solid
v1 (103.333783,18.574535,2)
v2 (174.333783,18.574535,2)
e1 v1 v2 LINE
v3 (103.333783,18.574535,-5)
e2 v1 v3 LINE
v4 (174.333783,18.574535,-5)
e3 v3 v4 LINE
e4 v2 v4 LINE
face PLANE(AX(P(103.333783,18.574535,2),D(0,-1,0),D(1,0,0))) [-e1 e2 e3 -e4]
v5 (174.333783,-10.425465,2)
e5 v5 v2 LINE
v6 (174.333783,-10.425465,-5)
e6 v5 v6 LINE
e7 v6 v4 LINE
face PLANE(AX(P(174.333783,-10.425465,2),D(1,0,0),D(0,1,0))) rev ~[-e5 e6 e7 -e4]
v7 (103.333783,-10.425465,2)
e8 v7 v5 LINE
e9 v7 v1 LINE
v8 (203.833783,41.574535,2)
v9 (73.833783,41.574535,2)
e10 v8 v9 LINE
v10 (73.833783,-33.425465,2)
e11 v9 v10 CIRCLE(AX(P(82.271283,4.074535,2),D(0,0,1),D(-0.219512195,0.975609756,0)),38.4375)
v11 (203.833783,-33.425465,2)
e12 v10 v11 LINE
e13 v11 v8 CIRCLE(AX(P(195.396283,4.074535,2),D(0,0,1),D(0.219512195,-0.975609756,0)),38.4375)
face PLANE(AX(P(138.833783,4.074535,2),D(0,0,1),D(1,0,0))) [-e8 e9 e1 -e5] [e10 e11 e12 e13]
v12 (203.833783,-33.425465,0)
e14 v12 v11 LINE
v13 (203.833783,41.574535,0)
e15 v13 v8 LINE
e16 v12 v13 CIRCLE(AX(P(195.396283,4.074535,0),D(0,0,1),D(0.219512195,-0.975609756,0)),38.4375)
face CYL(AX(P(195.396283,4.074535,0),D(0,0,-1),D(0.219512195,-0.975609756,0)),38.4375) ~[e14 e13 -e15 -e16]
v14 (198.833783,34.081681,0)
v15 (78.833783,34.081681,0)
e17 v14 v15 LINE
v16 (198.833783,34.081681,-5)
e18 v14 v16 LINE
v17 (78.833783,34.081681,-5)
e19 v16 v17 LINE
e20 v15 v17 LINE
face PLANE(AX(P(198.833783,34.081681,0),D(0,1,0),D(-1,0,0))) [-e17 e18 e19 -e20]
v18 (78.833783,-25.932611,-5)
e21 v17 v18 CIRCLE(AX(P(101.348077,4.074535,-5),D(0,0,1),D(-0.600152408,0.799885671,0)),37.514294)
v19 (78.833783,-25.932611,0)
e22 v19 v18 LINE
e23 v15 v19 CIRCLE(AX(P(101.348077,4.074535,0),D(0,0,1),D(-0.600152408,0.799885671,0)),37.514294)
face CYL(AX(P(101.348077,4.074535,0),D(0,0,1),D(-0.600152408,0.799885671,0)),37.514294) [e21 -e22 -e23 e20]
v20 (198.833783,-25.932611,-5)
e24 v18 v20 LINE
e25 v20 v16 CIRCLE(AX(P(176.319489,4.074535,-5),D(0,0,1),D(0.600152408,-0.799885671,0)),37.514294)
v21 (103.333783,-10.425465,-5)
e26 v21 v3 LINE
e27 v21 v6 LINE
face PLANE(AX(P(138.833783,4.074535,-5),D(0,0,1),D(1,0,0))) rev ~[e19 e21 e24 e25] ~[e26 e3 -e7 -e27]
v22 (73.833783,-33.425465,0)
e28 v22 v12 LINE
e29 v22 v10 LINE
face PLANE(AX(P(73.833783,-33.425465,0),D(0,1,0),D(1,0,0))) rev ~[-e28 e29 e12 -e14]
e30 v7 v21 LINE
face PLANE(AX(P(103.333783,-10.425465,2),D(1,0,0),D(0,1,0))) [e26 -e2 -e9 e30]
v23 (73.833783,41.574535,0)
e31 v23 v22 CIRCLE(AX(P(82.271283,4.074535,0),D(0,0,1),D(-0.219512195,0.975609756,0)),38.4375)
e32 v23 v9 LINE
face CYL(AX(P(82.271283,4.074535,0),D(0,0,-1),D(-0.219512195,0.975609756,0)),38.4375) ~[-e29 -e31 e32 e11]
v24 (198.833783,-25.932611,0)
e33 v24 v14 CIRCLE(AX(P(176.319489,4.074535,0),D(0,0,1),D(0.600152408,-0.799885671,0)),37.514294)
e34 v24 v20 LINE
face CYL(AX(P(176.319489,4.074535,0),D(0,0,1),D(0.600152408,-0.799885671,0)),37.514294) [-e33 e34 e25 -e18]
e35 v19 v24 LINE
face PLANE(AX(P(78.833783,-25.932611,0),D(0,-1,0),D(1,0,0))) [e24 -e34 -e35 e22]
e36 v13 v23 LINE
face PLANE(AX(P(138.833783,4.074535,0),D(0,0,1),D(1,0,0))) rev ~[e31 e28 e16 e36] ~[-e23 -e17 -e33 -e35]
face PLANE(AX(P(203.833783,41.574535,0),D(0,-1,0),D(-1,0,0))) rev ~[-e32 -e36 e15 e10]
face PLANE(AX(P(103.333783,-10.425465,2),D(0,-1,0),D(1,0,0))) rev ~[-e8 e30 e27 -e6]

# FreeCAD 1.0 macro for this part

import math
import FreeCAD as App
import Part
import Sketcher
from FreeCAD import Vector
Q = App.Units.Quantity


def add_polygon(sketch, points):
    """Adds a closed chain of lines whose ends are joined by coincident constraints."""
    first, n = sketch.GeometryCount, len(points)
    for a, b in zip(points, points[1:] + points[:1]):
        sketch.addGeometry(Part.LineSegment(App.Vector(*a, 0), App.Vector(*b, 0)), False)
    for i in range(n):
        sketch.addConstraint(Sketcher.Constraint("Coincident", first + i, 2, first + (i + 1) % n, 1))

doc = App.newDocument("Part")
body = doc.addObject("PartDesign::Body", "Body")

sketch1 = doc.addObject("Sketcher::SketchObject", "Sketch")
body.addObject(sketch1)
sketch1.AttachmentSupport = (doc.XY_Plane, [""])
sketch1.MapMode = "FlatFace"
sketch1.addGeometry(Part.LineSegment(Vector(204, 42, 0), Vector(74, 42, 0)), False)
sketch1.addGeometry(Part.ArcOfCircle(Part.Circle(Vector(82, 4, 0), Vector(0, 0, 1), 38), math.radians(103), math.radians(257)), False)
sketch1.addGeometry(Part.LineSegment(Vector(74, -33, 0), Vector(204, -33, 0)), False)
sketch1.addGeometry(Part.ArcOfCircle(Part.Circle(Vector(195, 4, 0), Vector(0, 0, 1), 38), math.radians(-77), math.radians(77)), False)
sketch1.addConstraint(Sketcher.Constraint("Coincident", 0, 2, 1, 1))
sketch1.addConstraint(Sketcher.Constraint("Coincident", 1, 2, 2, 1))
sketch1.addConstraint(Sketcher.Constraint("Coincident", 2, 2, 3, 1))
sketch1.addConstraint(Sketcher.Constraint("Coincident", 3, 2, 0, 1))
sketch1.addConstraint(Sketcher.Constraint("Horizontal", 0))
sketch1.addConstraint(Sketcher.Constraint("Horizontal", 2))
sketch1.addConstraint(Sketcher.Constraint("Equal", 1, 3))
sketch1.addConstraint(Sketcher.Constraint("Horizontal", 1, 3, 3, 3))
sketch1.addConstraint(Sketcher.Constraint("Vertical", 0, 2, 1, 2))
sketch1.addConstraint(Sketcher.Constraint("DistanceX", 0, 2, 0, 1, Q("130 mm")))
sketch1.addConstraint(Sketcher.Constraint("DistanceY", 1, 2, 0, 2, Q("75 mm")))
sketch1.addConstraint(Sketcher.Constraint("Radius", 1, Q("38.4375 mm")))
sketch1.addConstraint(Sketcher.Constraint("DistanceX", -1, 1, 1, 3, Q("82.271283 mm")))
sketch1.addConstraint(Sketcher.Constraint("DistanceY", -1, 1, 1, 3, Q("4.074535 mm")))
pad1 = doc.addObject("PartDesign::Pad", "Pad")
body.addObject(pad1)
pad1.Profile = sketch1
pad1.Length = 2

sketch2 = doc.addObject("Sketcher::SketchObject", "Sketch001")
body.addObject(sketch2)
sketch2.AttachmentSupport = (doc.XY_Plane, [""])
sketch2.MapMode = "FlatFace"
sketch2.addGeometry(Part.ArcOfCircle(Part.Circle(Vector(101, 4, 0), Vector(0, 0, 1), 38), math.radians(127), math.radians(233)), False)
sketch2.addGeometry(Part.LineSegment(Vector(79, -26, 0), Vector(199, -26, 0)), False)
sketch2.addGeometry(Part.ArcOfCircle(Part.Circle(Vector(176, 4, 0), Vector(0, 0, 1), 38), math.radians(-53), math.radians(53)), False)
sketch2.addGeometry(Part.LineSegment(Vector(199, 34, 0), Vector(79, 34, 0)), False)
sketch2.addConstraint(Sketcher.Constraint("Coincident", 0, 2, 1, 1))
sketch2.addConstraint(Sketcher.Constraint("Coincident", 1, 2, 2, 1))
sketch2.addConstraint(Sketcher.Constraint("Coincident", 2, 2, 3, 1))
sketch2.addConstraint(Sketcher.Constraint("Coincident", 3, 2, 0, 1))
sketch2.addConstraint(Sketcher.Constraint("Horizontal", 1))
sketch2.addConstraint(Sketcher.Constraint("Horizontal", 3))
sketch2.addConstraint(Sketcher.Constraint("Equal", 0, 2))
sketch2.addConstraint(Sketcher.Constraint("Horizontal", 0, 3, 2, 3))
sketch2.addConstraint(Sketcher.Constraint("Vertical", 1, 2, 2, 2))
sketch2.addConstraint(Sketcher.Constraint("DistanceX", 1, 1, 1, 2, Q("120 mm")))
sketch2.addConstraint(Sketcher.Constraint("Radius", 0, Q("37.514294 mm")))
sketch2.addConstraint(Sketcher.Constraint("DistanceX", -1, 1, 2, 3, Q("176.319489 mm")))
sketch2.addConstraint(Sketcher.Constraint("DistanceY", 0, 2, -1, 1, Q("25.932611 mm")))
sketch2.addConstraint(Sketcher.Constraint("DistanceY", -1, 1, 2, 2, Q("34.081681 mm")))
pad2 = doc.addObject("PartDesign::Pad", "Pad001")
body.addObject(pad2)
pad2.Profile = sketch2
pad2.Length = 5
pad2.Reversed = True

sketch3 = doc.addObject("Sketcher::SketchObject", "Sketch002")
body.addObject(sketch3)
sketch3.AttachmentSupport = (doc.XY_Plane, [""])
sketch3.MapMode = "FlatFace"
sketch3.AttachmentOffset = App.Placement(Vector(0, 0, 2), App.Rotation())
add_polygon(sketch3, [(103, 19), (103, -10), (174, -10), (174, 19)])
sketch3.addConstraint(Sketcher.Constraint("Vertical", 0))
sketch3.addConstraint(Sketcher.Constraint("Horizontal", 1))
sketch3.addConstraint(Sketcher.Constraint("Vertical", 2))
sketch3.addConstraint(Sketcher.Constraint("Horizontal", 3))
sketch3.addConstraint(Sketcher.Constraint("DistanceX", 1, 1, 1, 2, Q("71 mm")))
sketch3.addConstraint(Sketcher.Constraint("DistanceY", 0, 2, 0, 1, Q("29 mm")))
sketch3.addConstraint(Sketcher.Constraint("DistanceX", -1, 1, 0, 2, Q("103.333783 mm")))
sketch3.addConstraint(Sketcher.Constraint("DistanceY", 0, 2, -1, 1, Q("10.425465 mm")))
pocket1 = doc.addObject("PartDesign::Pocket", "Pocket")
body.addObject(pocket1)
pocket1.Profile = sketch3
pocket1.Type = "ThroughAll"

doc.recompute()
